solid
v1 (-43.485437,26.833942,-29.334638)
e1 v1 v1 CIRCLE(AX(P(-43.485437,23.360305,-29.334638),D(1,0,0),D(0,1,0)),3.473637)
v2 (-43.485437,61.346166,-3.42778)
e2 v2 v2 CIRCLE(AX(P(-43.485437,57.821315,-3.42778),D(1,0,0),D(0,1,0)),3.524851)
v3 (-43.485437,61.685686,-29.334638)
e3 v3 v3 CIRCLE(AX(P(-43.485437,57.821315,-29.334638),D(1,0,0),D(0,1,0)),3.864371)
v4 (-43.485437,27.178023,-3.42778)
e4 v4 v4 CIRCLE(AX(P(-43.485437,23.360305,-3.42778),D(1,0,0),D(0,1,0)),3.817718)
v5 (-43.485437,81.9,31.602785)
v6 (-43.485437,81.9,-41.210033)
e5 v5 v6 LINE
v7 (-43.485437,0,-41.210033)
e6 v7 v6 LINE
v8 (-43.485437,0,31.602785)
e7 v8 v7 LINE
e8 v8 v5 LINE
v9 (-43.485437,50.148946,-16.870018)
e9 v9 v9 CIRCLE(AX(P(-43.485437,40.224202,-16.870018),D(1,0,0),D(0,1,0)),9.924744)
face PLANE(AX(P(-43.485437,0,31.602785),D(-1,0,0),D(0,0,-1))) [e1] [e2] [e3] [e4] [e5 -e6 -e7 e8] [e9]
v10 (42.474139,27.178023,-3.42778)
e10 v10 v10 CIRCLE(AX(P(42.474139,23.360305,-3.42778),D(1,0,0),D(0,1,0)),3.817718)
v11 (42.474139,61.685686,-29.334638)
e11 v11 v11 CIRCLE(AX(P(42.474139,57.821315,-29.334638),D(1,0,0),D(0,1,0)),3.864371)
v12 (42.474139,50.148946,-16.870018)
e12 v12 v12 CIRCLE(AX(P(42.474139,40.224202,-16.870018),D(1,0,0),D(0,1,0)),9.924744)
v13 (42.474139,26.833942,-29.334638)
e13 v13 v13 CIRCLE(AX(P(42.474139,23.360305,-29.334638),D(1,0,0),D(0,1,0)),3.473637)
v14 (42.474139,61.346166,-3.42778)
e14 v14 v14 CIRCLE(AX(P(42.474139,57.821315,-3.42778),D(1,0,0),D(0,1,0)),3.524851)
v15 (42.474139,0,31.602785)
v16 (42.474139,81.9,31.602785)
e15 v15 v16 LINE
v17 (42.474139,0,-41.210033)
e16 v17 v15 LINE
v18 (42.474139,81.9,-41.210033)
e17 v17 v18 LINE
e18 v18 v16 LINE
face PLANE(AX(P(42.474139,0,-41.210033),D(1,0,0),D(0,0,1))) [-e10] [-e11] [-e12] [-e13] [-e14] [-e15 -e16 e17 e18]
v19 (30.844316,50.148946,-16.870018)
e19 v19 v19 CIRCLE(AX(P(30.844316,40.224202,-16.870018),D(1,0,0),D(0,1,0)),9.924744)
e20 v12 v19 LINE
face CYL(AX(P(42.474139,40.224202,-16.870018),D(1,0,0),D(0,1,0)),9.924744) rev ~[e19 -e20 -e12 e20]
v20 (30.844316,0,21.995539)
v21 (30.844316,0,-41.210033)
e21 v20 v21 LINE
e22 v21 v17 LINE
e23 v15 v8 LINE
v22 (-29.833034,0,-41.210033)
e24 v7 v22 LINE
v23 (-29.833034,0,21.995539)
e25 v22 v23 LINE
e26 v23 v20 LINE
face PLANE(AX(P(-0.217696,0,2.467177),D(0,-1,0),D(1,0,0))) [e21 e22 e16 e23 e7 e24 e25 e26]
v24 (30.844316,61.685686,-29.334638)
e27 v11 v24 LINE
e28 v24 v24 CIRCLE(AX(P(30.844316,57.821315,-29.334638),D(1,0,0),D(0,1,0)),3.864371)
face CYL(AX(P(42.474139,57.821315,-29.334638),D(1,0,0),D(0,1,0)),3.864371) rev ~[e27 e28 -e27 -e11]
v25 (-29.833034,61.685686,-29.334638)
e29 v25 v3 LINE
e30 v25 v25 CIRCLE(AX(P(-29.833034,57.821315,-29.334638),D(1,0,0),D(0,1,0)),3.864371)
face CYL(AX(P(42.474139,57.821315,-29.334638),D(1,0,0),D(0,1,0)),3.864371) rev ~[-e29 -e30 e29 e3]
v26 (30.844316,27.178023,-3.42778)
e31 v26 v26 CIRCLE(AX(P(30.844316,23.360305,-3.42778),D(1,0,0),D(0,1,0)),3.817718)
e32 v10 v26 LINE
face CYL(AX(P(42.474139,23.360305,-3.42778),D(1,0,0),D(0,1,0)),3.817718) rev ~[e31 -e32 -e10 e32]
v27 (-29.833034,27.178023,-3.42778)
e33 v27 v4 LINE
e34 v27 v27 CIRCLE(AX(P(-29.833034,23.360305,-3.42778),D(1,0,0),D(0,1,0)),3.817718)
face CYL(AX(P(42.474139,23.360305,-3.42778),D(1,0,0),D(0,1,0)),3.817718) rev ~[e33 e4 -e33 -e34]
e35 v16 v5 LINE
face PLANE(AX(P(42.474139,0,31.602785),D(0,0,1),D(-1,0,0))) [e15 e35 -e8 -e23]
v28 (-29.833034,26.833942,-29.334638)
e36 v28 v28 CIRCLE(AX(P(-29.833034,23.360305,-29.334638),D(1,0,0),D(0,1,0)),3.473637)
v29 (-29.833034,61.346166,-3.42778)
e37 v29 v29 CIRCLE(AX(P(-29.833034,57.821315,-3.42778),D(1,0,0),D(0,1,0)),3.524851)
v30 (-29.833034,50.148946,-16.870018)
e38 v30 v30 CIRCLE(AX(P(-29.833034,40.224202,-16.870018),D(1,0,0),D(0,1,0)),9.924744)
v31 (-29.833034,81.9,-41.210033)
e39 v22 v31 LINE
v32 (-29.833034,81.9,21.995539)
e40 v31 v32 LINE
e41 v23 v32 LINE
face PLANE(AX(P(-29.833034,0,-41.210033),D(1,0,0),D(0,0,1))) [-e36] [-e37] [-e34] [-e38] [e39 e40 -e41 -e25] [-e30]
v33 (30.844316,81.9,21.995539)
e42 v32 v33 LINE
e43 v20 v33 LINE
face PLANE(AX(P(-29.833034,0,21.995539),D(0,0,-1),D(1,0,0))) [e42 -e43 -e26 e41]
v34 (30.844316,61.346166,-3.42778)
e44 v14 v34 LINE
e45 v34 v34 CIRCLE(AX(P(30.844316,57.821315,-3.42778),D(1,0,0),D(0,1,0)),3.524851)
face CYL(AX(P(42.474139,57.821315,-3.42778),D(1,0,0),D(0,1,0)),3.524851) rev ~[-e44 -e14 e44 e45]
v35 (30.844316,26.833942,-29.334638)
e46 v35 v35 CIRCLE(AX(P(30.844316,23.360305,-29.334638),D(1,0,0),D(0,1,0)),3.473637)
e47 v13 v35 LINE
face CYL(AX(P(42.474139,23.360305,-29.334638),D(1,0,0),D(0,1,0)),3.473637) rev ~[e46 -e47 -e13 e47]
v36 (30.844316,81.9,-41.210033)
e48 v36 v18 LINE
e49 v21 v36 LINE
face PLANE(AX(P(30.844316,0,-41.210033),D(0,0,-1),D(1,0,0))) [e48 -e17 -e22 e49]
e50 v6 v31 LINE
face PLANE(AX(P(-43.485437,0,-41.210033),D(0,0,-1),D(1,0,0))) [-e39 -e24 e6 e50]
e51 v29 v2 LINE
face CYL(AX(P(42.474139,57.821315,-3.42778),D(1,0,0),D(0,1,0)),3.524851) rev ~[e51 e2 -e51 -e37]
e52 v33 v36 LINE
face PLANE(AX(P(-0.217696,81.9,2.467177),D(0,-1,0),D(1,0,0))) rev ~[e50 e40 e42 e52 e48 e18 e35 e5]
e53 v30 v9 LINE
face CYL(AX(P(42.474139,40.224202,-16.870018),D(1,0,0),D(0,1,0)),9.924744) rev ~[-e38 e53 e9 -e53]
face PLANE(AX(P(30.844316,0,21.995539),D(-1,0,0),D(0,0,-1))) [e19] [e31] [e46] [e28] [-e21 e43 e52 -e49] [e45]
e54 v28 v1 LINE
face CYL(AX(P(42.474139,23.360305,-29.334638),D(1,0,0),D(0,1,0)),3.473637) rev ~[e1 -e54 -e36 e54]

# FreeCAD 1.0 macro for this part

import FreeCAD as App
import Part
import Sketcher

V = App.Vector
Q = App.Units.Quantity


def add_polygon(sketch, points):
    """Adds a closed chain of lines whose ends are joined by coincident constraints."""
    first, n = sketch.GeometryCount, len(points)
    for a, b in zip(points, points[1:] + points[:1]):
        sketch.addGeometry(Part.LineSegment(App.Vector(*a, 0), App.Vector(*b, 0)), False)
    for i in range(n):
        sketch.addConstraint(Sketcher.Constraint("Coincident", first + i, 2, first + (i + 1) % n, 1))

doc = App.newDocument("Part")
body = doc.addObject("PartDesign::Body", "Body")

# Sketch on XZ plane
sketch1 = doc.addObject("Sketcher::SketchObject", "Sketch")
body.addObject(sketch1)
sketch1.AttachmentSupport = (doc.XZ_Plane, [""])
sketch1.MapMode = "FlatFace"
add_polygon(sketch1, [(42, 32), (-43, 32), (-43, -41), (-30, -41), (-30, 22), (31, 22), (31, -41), (42, -41)])  # lines 0-7
sketch1.addConstraint([
    Sketcher.Constraint("Horizontal", 0),
    Sketcher.Constraint("Vertical", 1),
    Sketcher.Constraint("Horizontal", 2),
    Sketcher.Constraint("Vertical", 3),
    Sketcher.Constraint("Horizontal", 4),
    Sketcher.Constraint("Vertical", 5),
    Sketcher.Constraint("Horizontal", 6),
    Sketcher.Constraint("Vertical", 7),
    Sketcher.Constraint("Horizontal", 2, 2, 5, 2),
    Sketcher.Constraint("DistanceX", 4, 1, 4, 2, Q("60.67735 mm")),
    Sketcher.Constraint("DistanceY", 1, 2, 1, 1, Q("72.812818 mm")),
    Sketcher.Constraint("DistanceX", 0, 2, 0, 1, Q("85.959576 mm")),
    Sketcher.Constraint("DistanceX", 2, 1, 2, 2, Q("13.652403 mm")),
    Sketcher.Constraint("DistanceY", 3, 1, 3, 2, Q("63.205572 mm")),
    Sketcher.Constraint("DistanceY", -1, 1, 3, 2, Q("21.995539 mm")),
    Sketcher.Constraint("DistanceX", -1, 1, 6, 2, Q("42.474139 mm")),
])
pad1 = doc.addObject("PartDesign::Pad", "Pad")
body.addObject(pad1)
pad1.Profile = sketch1
pad1.Length = 81.9
pad1.Reversed = True

# Sketch on YZ plane
sketch2 = doc.addObject("Sketcher::SketchObject", "Sketch001")
body.addObject(sketch2)
sketch2.AttachmentSupport = (doc.YZ_Plane, [""])
sketch2.MapMode = "FlatFace"
sketch2.AttachmentOffset = App.Placement(V(0, 0, 42.474139), App.Rotation())
sketch2.addGeometry([
    Part.Circle(V(40.2, -16.9, 0), V(0, 0, 1), 9.9),  # 0
    Part.Circle(V(23.4, -3.4, 0), V(0, 0, 1), 3.8),  # 1
    Part.Circle(V(23.4, -29.3, 0), V(0, 0, 1), 3.5),  # 2
    Part.Circle(V(57.8, -3.4, 0), V(0, 0, 1), 3.5),  # 3
    Part.Circle(V(57.8, -29.3, 0), V(0, 0, 1), 3.9),  # 4
], False)
sketch2.addConstraint([
    Sketcher.Constraint("Horizontal", 1, 3, 3, 3),
    Sketcher.Constraint("Horizontal", 2, 3, 4, 3),
    Sketcher.Constraint("Vertical", 1, 3, 2, 3),
    Sketcher.Constraint("Vertical", 3, 3, 4, 3),
    Sketcher.Constraint("Diameter", 0, Q("19.849488 mm")),
    Sketcher.Constraint("Diameter", 4, Q("7.728742 mm")),
    Sketcher.Constraint("Diameter", 1, Q("7.635436 mm")),
    Sketcher.Constraint("Diameter", 2, Q("6.947274 mm")),
    Sketcher.Constraint("Diameter", 3, Q("7.049702 mm")),
    Sketcher.Constraint("DistanceX", -1, 1, 0, 3, Q("40.224202 mm")),
    Sketcher.Constraint("DistanceY", 0, 3, -1, 1, Q("16.870018 mm")),
    Sketcher.Constraint("DistanceY", 1, 3, -1, 1, Q("3.42778 mm")),
    Sketcher.Constraint("DistanceY", 2, 3, -1, 1, Q("29.334638 mm")),
    Sketcher.Constraint("DistanceX", 1, 3, 3, 3, Q("34.46101 mm")),
    Sketcher.Constraint("DistanceX", -1, 1, 1, 3, Q("23.360305 mm")),
])
pocket1 = doc.addObject("PartDesign::Pocket", "Pocket")
body.addObject(pocket1)
pocket1.Profile = sketch2
pocket1.Length = 140.3

doc.recompute()
